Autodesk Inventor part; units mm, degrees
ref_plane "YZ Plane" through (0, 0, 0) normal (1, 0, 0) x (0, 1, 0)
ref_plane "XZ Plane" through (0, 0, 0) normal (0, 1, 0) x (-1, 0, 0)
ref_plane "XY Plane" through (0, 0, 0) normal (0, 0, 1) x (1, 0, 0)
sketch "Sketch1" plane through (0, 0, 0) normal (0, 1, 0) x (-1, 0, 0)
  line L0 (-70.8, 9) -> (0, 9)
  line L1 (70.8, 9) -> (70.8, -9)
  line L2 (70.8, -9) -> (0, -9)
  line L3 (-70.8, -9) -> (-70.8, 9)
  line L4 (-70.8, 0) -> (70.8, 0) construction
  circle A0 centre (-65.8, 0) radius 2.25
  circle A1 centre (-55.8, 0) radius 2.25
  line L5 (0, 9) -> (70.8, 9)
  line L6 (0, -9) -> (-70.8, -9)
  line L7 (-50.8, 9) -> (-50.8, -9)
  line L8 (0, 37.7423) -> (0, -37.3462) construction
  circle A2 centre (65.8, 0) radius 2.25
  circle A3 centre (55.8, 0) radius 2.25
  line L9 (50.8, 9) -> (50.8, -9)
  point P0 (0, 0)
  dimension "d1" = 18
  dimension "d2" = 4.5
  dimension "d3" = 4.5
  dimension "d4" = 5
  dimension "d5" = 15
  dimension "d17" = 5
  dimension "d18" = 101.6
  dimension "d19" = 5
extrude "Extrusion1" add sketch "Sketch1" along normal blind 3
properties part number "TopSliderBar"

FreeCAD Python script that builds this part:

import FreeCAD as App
import Part
import Sketcher

V = App.Vector

doc = App.newDocument("Part")
body = doc.addObject("PartDesign::Body", "Body")

# Sketch on XZ plane
sketch1 = doc.addObject("Sketcher::SketchObject", "Sketch")
body.addObject(sketch1)
sketch1.AttachmentSupport = (doc.XZ_Plane, [""])
sketch1.MapMode = "FlatFace"
sketch1.addGeometry(Part.LineSegment(V(70.8, 9, 0), V(70.8, -9, 0)), False)
sketch1.addGeometry(Part.LineSegment(V(70.8, -9, 0), V(-70.8, -9, 0)), False)
sketch1.addGeometry(Part.LineSegment(V(-70.8, -9, 0), V(-70.8, 9, 0)), False)
sketch1.addGeometry(Part.LineSegment(V(-70.8, 9, 0), V(70.8, 9, 0)), False)
sketch1.addGeometry(Part.Circle(V(65.8, 0, 0), V(0, 0, 1), 2.2), False)
sketch1.addGeometry(Part.Circle(V(55.8, 0, 0), V(0, 0, 1), 2.2), False)
sketch1.addGeometry(Part.Circle(V(-65.8, 0, 0), V(0, 0, 1), 2.2), False)
sketch1.addGeometry(Part.Circle(V(-55.8, 0, 0), V(0, 0, 1), 2.2), False)
sketch1.addConstraint(Sketcher.Constraint("Coincident", 0, 2, 1, 1))
sketch1.addConstraint(Sketcher.Constraint("Coincident", 1, 2, 2, 1))
sketch1.addConstraint(Sketcher.Constraint("Coincident", 2, 2, 3, 1))
sketch1.addConstraint(Sketcher.Constraint("Coincident", 3, 2, 0, 1))
sketch1.addConstraint(Sketcher.Constraint("Vertical", 0))
sketch1.addConstraint(Sketcher.Constraint("Horizontal", 1))
sketch1.addConstraint(Sketcher.Constraint("Vertical", 2))
sketch1.addConstraint(Sketcher.Constraint("Horizontal", 3))
sketch1.addConstraint(Sketcher.Constraint("Equal", 4, 5))
sketch1.addConstraint(Sketcher.Constraint("Equal", 5, 6))
sketch1.addConstraint(Sketcher.Constraint("Equal", 6, 7))
sketch1.addConstraint(Sketcher.Constraint("Symmetric", 4, 3, 6, 3, -1, 1))
sketch1.addConstraint(Sketcher.Constraint("Symmetric", 5, 3, 7, 3, -1, 1))
sketch1.addConstraint(Sketcher.Constraint("Symmetric", 0, 2, 2, 2, -1, 1))
sketch1.addConstraint(Sketcher.Constraint("PointOnObject", 4, 3, -1))
sketch1.addConstraint(Sketcher.Constraint("PointOnObject", 5, 3, -1))
sketch1.addConstraint(Sketcher.Constraint("Diameter", 4, 4.5))
sketch1.addConstraint(Sketcher.Constraint("DistanceY", 0, 2, 0, 1, 18.0))
sketch1.addConstraint(Sketcher.Constraint("DistanceX", 4, 3, 0, 2, 5.0))
sketch1.addConstraint(Sketcher.Constraint("DistanceX", 5, 3, 0, 2, 15.0))
sketch1.addConstraint(Sketcher.Constraint("DistanceX", 1, 2, 1, 1, 141.6))
pad1 = doc.addObject("PartDesign::Pad", "Pad")
body.addObject(pad1)
pad1.Profile = sketch1
pad1.Length = 3
pad1.Reversed = True

doc.recompute()
